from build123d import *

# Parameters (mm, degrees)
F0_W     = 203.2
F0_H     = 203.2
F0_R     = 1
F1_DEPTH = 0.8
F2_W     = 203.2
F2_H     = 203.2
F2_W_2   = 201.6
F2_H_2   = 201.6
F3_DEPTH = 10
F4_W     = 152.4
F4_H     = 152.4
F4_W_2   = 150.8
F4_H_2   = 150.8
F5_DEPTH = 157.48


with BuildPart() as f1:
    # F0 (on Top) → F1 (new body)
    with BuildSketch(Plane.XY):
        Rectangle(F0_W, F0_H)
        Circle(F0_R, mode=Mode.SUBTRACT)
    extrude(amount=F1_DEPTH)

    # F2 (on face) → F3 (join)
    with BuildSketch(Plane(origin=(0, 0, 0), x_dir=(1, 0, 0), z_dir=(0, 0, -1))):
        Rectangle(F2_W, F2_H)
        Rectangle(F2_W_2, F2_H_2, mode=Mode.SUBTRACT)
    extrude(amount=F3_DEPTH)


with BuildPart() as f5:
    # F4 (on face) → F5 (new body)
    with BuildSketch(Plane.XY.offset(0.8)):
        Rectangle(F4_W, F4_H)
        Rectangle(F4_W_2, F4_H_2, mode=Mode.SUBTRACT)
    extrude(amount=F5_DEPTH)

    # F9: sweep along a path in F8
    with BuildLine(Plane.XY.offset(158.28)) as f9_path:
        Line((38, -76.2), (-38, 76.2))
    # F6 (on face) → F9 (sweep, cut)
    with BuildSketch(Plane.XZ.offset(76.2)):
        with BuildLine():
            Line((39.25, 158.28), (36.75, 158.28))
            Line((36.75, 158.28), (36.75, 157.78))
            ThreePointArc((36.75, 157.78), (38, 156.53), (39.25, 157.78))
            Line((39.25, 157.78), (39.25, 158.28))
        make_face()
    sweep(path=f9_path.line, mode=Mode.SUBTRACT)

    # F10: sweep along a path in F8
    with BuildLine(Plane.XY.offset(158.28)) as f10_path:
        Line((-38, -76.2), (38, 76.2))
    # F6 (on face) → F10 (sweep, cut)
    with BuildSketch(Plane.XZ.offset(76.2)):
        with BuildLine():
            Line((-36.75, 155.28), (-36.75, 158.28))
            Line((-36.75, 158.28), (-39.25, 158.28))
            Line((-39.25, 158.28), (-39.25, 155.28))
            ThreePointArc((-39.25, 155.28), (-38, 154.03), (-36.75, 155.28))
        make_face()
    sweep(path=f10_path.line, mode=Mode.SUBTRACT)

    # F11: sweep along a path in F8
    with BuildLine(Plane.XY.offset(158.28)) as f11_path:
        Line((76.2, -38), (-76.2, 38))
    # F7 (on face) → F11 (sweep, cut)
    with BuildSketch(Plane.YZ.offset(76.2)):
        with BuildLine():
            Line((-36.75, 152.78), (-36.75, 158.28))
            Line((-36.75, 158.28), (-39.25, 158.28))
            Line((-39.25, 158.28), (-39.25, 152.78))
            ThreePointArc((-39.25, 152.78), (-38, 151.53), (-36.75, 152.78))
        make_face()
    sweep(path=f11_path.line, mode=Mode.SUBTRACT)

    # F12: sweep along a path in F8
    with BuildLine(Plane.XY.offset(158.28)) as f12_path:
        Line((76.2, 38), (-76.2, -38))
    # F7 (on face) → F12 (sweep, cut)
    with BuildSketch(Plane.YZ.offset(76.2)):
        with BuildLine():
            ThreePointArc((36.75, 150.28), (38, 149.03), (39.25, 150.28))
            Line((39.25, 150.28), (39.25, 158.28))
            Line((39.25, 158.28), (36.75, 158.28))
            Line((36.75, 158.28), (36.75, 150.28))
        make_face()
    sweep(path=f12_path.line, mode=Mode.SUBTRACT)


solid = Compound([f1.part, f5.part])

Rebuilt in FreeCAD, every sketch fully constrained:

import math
import FreeCAD as App
import Part
import Sketcher

doc = App.newDocument("Part")
body = doc.addObject("PartDesign::Body", "Body")

sketch1 = body.newObject("Sketcher::SketchObject", "Sketch")
sketch1.AttachmentSupport = (doc.getObject("XY_Plane"), [""])
sketch1.MapMode = "FlatFace"
sketch1.addGeometry(Part.LineSegment(App.Vector(-101.6, 101.6, 0), App.Vector(-101.6, -101.6, 0)), False)
sketch1.addGeometry(Part.LineSegment(App.Vector(-101.6, -101.6, 0), App.Vector(101.6, -101.6, 0)), False)
sketch1.addGeometry(Part.LineSegment(App.Vector(101.6, -101.6, 0), App.Vector(101.6, 101.6, 0)), False)
sketch1.addGeometry(Part.LineSegment(App.Vector(101.6, 101.6, 0), App.Vector(-101.6, 101.6, 0)), False)
sketch1.addGeometry(Part.Circle(App.Vector(0, 0, 0), App.Vector(0, 0, 1), 1), False)
sketch1.addConstraint(Sketcher.Constraint("Coincident", 0, 2, 1, 1))
sketch1.addConstraint(Sketcher.Constraint("Coincident", 1, 2, 2, 1))
sketch1.addConstraint(Sketcher.Constraint("Coincident", 2, 2, 3, 1))
sketch1.addConstraint(Sketcher.Constraint("Coincident", 3, 2, 0, 1))
sketch1.addConstraint(Sketcher.Constraint("Vertical", 0))
sketch1.addConstraint(Sketcher.Constraint("Horizontal", 1))
sketch1.addConstraint(Sketcher.Constraint("Vertical", 2))
sketch1.addConstraint(Sketcher.Constraint("Horizontal", 3))
sketch1.addConstraint(Sketcher.Constraint("Coincident", 4, 3, -1, 1))
sketch1.addConstraint(Sketcher.Constraint("Symmetric", 0, 2, 2, 2, -1, 1))
sketch1.addConstraint(Sketcher.Constraint("Equal", 3, 0))
sketch1.addConstraint(Sketcher.Constraint("Diameter", 4, 2.0))
sketch1.addConstraint(Sketcher.Constraint("DistanceX", 1, 1, 1, 2, 203.2))
pad1 = body.newObject("PartDesign::Pad", "Pad")
pad1.Profile = sketch1
pad1.Length = 0.8

sketch2 = body.newObject("Sketcher::SketchObject", "Sketch001")
sketch2.AttachmentSupport = (doc.getObject("XY_Plane"), [""])
sketch2.MapMode = "FlatFace"
sketch2.addGeometry(Part.LineSegment(App.Vector(-101.6, -101.6, 0), App.Vector(-101.6, 101.6, 0)), False)
sketch2.addGeometry(Part.LineSegment(App.Vector(-101.6, 101.6, 0), App.Vector(101.6, 101.6, 0)), False)
sketch2.addGeometry(Part.LineSegment(App.Vector(101.6, 101.6, 0), App.Vector(101.6, -101.6, 0)), False)
sketch2.addGeometry(Part.LineSegment(App.Vector(101.6, -101.6, 0), App.Vector(-101.6, -101.6, 0)), False)
sketch2.addGeometry(Part.LineSegment(App.Vector(100.8, 100.8, 0), App.Vector(-100.8, 100.8, 0)), False)
sketch2.addGeometry(Part.LineSegment(App.Vector(-100.8, 100.8, 0), App.Vector(-100.8, -100.8, 0)), False)
sketch2.addGeometry(Part.LineSegment(App.Vector(-100.8, -100.8, 0), App.Vector(100.8, -100.8, 0)), False)
sketch2.addGeometry(Part.LineSegment(App.Vector(100.8, -100.8, 0), App.Vector(100.8, 100.8, 0)), False)
sketch2.addConstraint(Sketcher.Constraint("Coincident", 0, 2, 1, 1))
sketch2.addConstraint(Sketcher.Constraint("Coincident", 1, 2, 2, 1))
sketch2.addConstraint(Sketcher.Constraint("Coincident", 2, 2, 3, 1))
sketch2.addConstraint(Sketcher.Constraint("Coincident", 3, 2, 0, 1))
sketch2.addConstraint(Sketcher.Constraint("Coincident", 4, 2, 5, 1))
sketch2.addConstraint(Sketcher.Constraint("Coincident", 5, 2, 6, 1))
sketch2.addConstraint(Sketcher.Constraint("Coincident", 6, 2, 7, 1))
sketch2.addConstraint(Sketcher.Constraint("Coincident", 7, 2, 4, 1))
sketch2.addConstraint(Sketcher.Constraint("Vertical", 0))
sketch2.addConstraint(Sketcher.Constraint("Horizontal", 1))
sketch2.addConstraint(Sketcher.Constraint("Vertical", 2))
sketch2.addConstraint(Sketcher.Constraint("Horizontal", 3))
sketch2.addConstraint(Sketcher.Constraint("Horizontal", 4))
sketch2.addConstraint(Sketcher.Constraint("Vertical", 5))
sketch2.addConstraint(Sketcher.Constraint("Horizontal", 6))
sketch2.addConstraint(Sketcher.Constraint("Vertical", 7))
sketch2.addConstraint(Sketcher.Constraint("Symmetric", 0, 2, 2, 2, -1, 1))
sketch2.addConstraint(Sketcher.Constraint("Symmetric", 4, 2, 6, 2, -1, 1))
sketch2.addConstraint(Sketcher.Constraint("Equal", 3, 0))
sketch2.addConstraint(Sketcher.Constraint("Equal", 6, 5))
sketch2.addConstraint(Sketcher.Constraint("DistanceX", 1, 1, 1, 2, 203.2))
sketch2.addConstraint(Sketcher.Constraint("DistanceX", 4, 2, 4, 1, 201.6))
pad2 = body.newObject("PartDesign::Pad", "Pad001")
pad2.Profile = sketch2
pad2.Length = 10
pad2.Reversed = True
body2 = doc.addObject("PartDesign::Body", "Body001")

sketch3 = body2.newObject("Sketcher::SketchObject", "Sketch002")
sketch3.AttachmentSupport = (doc.getObject("XY_Plane001"), [""])
sketch3.MapMode = "FlatFace"
sketch3.AttachmentOffset = App.Placement(App.Vector(0, 0, 0.8), App.Rotation())
sketch3.addGeometry(Part.LineSegment(App.Vector(-76.2, 76.2, 0), App.Vector(-76.2, -76.2, 0)), False)
sketch3.addGeometry(Part.LineSegment(App.Vector(-76.2, -76.2, 0), App.Vector(76.2, -76.2, 0)), False)
sketch3.addGeometry(Part.LineSegment(App.Vector(76.2, -76.2, 0), App.Vector(76.2, 76.2, 0)), False)
sketch3.addGeometry(Part.LineSegment(App.Vector(76.2, 76.2, 0), App.Vector(-76.2, 76.2, 0)), False)
sketch3.addGeometry(Part.LineSegment(App.Vector(75.4, -75.4, 0), App.Vector(-75.4, -75.4, 0)), False)
sketch3.addGeometry(Part.LineSegment(App.Vector(-75.4, -75.4, 0), App.Vector(-75.4, 75.4, 0)), False)
sketch3.addGeometry(Part.LineSegment(App.Vector(-75.4, 75.4, 0), App.Vector(75.4, 75.4, 0)), False)
sketch3.addGeometry(Part.LineSegment(App.Vector(75.4, 75.4, 0), App.Vector(75.4, -75.4, 0)), False)
sketch3.addConstraint(Sketcher.Constraint("Coincident", 0, 2, 1, 1))
sketch3.addConstraint(Sketcher.Constraint("Coincident", 1, 2, 2, 1))
sketch3.addConstraint(Sketcher.Constraint("Coincident", 2, 2, 3, 1))
sketch3.addConstraint(Sketcher.Constraint("Coincident", 3, 2, 0, 1))
sketch3.addConstraint(Sketcher.Constraint("Coincident", 4, 2, 5, 1))
sketch3.addConstraint(Sketcher.Constraint("Coincident", 5, 2, 6, 1))
sketch3.addConstraint(Sketcher.Constraint("Coincident", 6, 2, 7, 1))
sketch3.addConstraint(Sketcher.Constraint("Coincident", 7, 2, 4, 1))
sketch3.addConstraint(Sketcher.Constraint("Vertical", 0))
sketch3.addConstraint(Sketcher.Constraint("Horizontal", 1))
sketch3.addConstraint(Sketcher.Constraint("Vertical", 2))
sketch3.addConstraint(Sketcher.Constraint("Horizontal", 3))
sketch3.addConstraint(Sketcher.Constraint("Horizontal", 4))
sketch3.addConstraint(Sketcher.Constraint("Vertical", 5))
sketch3.addConstraint(Sketcher.Constraint("Horizontal", 6))
sketch3.addConstraint(Sketcher.Constraint("Vertical", 7))
sketch3.addConstraint(Sketcher.Constraint("Symmetric", 0, 2, 2, 2, -1, 1))
sketch3.addConstraint(Sketcher.Constraint("Symmetric", 4, 2, 6, 2, -1, 1))
sketch3.addConstraint(Sketcher.Constraint("Equal", 3, 0))
sketch3.addConstraint(Sketcher.Constraint("Equal", 6, 5))
sketch3.addConstraint(Sketcher.Constraint("DistanceX", 1, 1, 1, 2, 152.4))
sketch3.addConstraint(Sketcher.Constraint("DistanceX", 4, 2, 4, 1, 150.8))
pad3 = body2.newObject("PartDesign::Pad", "Pad002")
pad3.Profile = sketch3
pad3.Length = 157.48

sketch4 = body2.newObject("Sketcher::SketchObject", "Sketch003")
sketch4.AttachmentSupport = (doc.getObject("XZ_Plane001"), [""])
sketch4.MapMode = "FlatFace"
sketch4.AttachmentOffset = App.Placement(App.Vector(0, 0, 76.2), App.Rotation())
sketch4.addGeometry(Part.LineSegment(App.Vector(39.25, 158.28, 0), App.Vector(36.75, 158.28, 0)), False)
sketch4.addGeometry(Part.LineSegment(App.Vector(36.75, 158.28, 0), App.Vector(36.75, 157.78, 0)), False)
sketch4.addGeometry(Part.ArcOfCircle(Part.Circle(App.Vector(38, 157.78, 0), App.Vector(0, 0, 1), 1.25), math.radians(180), math.radians(360)), False)
sketch4.addGeometry(Part.LineSegment(App.Vector(39.25, 157.78, 0), App.Vector(39.25, 158.28, 0)), False)
sketch4.addConstraint(Sketcher.Constraint("Coincident", 0, 2, 1, 1))
sketch4.addConstraint(Sketcher.Constraint("Tangent", 1, 2, 2, 1))
sketch4.addConstraint(Sketcher.Constraint("Tangent", 2, 2, 3, 1))
sketch4.addConstraint(Sketcher.Constraint("Coincident", 3, 2, 0, 1))
sketch4.addConstraint(Sketcher.Constraint("Horizontal", 0))
sketch4.addConstraint(Sketcher.Constraint("Vertical", 1))
sketch4.addConstraint(Sketcher.Constraint("Vertical", 3))
sketch4.addConstraint(Sketcher.Constraint("Radius", 2, 1.25))
sketch4.addConstraint(Sketcher.Constraint("DistanceY", 1, 2, 1, 1, 0.5))
sketch4.addConstraint(Sketcher.Constraint("DistanceX", -1, 1, 2, 3, 38.0))
sketch4.addConstraint(Sketcher.Constraint("DistanceY", -1, 1, 2, 3, 157.78))

sketch5 = body2.newObject("Sketcher::SketchObject", "Sketch004")
sketch5.Placement = App.Placement(App.Vector(0, 0, 0), App.Rotation(App.Vector(-0.446273825, 0.894896459, 0), App.Vector(0, 0, 0.999999999), App.Vector(0.894896459, 0.446273825, 0), "ZXY"))
sketch5.addGeometry(Part.LineSegment(App.Vector(-85.149515, 158.28, 0), App.Vector(85.149515, 158.28, 0)), False)
sketch5.addConstraint(Sketcher.Constraint("Horizontal", 0))
sketch5.addConstraint(Sketcher.Constraint("DistanceY", -1, 1, 0, 1, 158.28))
sketch5.addConstraint(Sketcher.Constraint("DistanceX", 0, 1, 0, 2, 170.299031))
sketch5.addConstraint(Sketcher.Constraint("DistanceX", 0, 1, -1, 1, 85.149515))
doc.recompute()

subtractivepipe = body2.newObject("PartDesign::SubtractivePipe", "SubtractivePipe")
subtractivepipe.Profile = sketch4
subtractivepipe.Spine = (sketch5, ["Edge1"])

sketch6 = body2.newObject("Sketcher::SketchObject", "Sketch005")
sketch6.AttachmentSupport = (doc.getObject("XZ_Plane001"), [""])
sketch6.MapMode = "FlatFace"
sketch6.AttachmentOffset = App.Placement(App.Vector(0, 0, 76.2), App.Rotation())
sketch6.addGeometry(Part.LineSegment(App.Vector(-36.75, 155.28, 0), App.Vector(-36.75, 158.28, 0)), False)
sketch6.addGeometry(Part.LineSegment(App.Vector(-36.75, 158.28, 0), App.Vector(-39.25, 158.28, 0)), False)
sketch6.addGeometry(Part.LineSegment(App.Vector(-39.25, 158.28, 0), App.Vector(-39.25, 155.28, 0)), False)
sketch6.addGeometry(Part.ArcOfCircle(Part.Circle(App.Vector(-38, 155.28, 0), App.Vector(0, 0, 1), 1.25), math.radians(180), math.radians(360)), False)
sketch6.addConstraint(Sketcher.Constraint("Coincident", 0, 2, 1, 1))
sketch6.addConstraint(Sketcher.Constraint("Coincident", 1, 2, 2, 1))
sketch6.addConstraint(Sketcher.Constraint("Tangent", 2, 2, 3, 1))
sketch6.addConstraint(Sketcher.Constraint("Tangent", 3, 2, 0, 1))
sketch6.addConstraint(Sketcher.Constraint("Vertical", 0))
sketch6.addConstraint(Sketcher.Constraint("Horizontal", 1))
sketch6.addConstraint(Sketcher.Constraint("Vertical", 2))
sketch6.addConstraint(Sketcher.Constraint("DistanceY", 0, 1, 0, 2, 3.0))
sketch6.addConstraint(Sketcher.Constraint("Radius", 3, 1.25))
sketch6.addConstraint(Sketcher.Constraint("DistanceX", 3, 3, -1, 1, 38.0))
sketch6.addConstraint(Sketcher.Constraint("DistanceY", -1, 1, 3, 3, 155.28))

sketch7 = body2.newObject("Sketcher::SketchObject", "Sketch006")
sketch7.Placement = App.Placement(App.Vector(0, 0, 0), App.Rotation(App.Vector(0.446273825, 0.894896459, 0), App.Vector(0, 0, 0.999999999), App.Vector(0.894896459, -0.446273825, 0), "ZXY"))
sketch7.addGeometry(Part.LineSegment(App.Vector(-85.149515, 158.28, 0), App.Vector(85.149515, 158.28, 0)), False)
sketch7.addConstraint(Sketcher.Constraint("Horizontal", 0))
sketch7.addConstraint(Sketcher.Constraint("DistanceY", -1, 1, 0, 1, 158.28))
sketch7.addConstraint(Sketcher.Constraint("DistanceX", 0, 1, 0, 2, 170.299031))
sketch7.addConstraint(Sketcher.Constraint("DistanceX", 0, 1, -1, 1, 85.149515))
doc.recompute()

subtractivepipe2 = body2.newObject("PartDesign::SubtractivePipe", "SubtractivePipe001")
subtractivepipe2.Profile = sketch6
subtractivepipe2.Spine = (sketch7, ["Edge1"])

sketch8 = body2.newObject("Sketcher::SketchObject", "Sketch007")
sketch8.AttachmentSupport = (doc.getObject("YZ_Plane001"), [""])
sketch8.MapMode = "FlatFace"
sketch8.AttachmentOffset = App.Placement(App.Vector(0, 0, 76.2), App.Rotation())
sketch8.addGeometry(Part.LineSegment(App.Vector(-36.75, 152.78, 0), App.Vector(-36.75, 158.28, 0)), False)
sketch8.addGeometry(Part.LineSegment(App.Vector(-36.75, 158.28, 0), App.Vector(-39.25, 158.28, 0)), False)
sketch8.addGeometry(Part.LineSegment(App.Vector(-39.25, 158.28, 0), App.Vector(-39.25, 152.78, 0)), False)
sketch8.addGeometry(Part.ArcOfCircle(Part.Circle(App.Vector(-38, 152.78, 0), App.Vector(0, 0, 1), 1.25), math.radians(180), math.radians(360)), False)
sketch8.addConstraint(Sketcher.Constraint("Coincident", 0, 2, 1, 1))
sketch8.addConstraint(Sketcher.Constraint("Coincident", 1, 2, 2, 1))
sketch8.addConstraint(Sketcher.Constraint("Tangent", 2, 2, 3, 1))
sketch8.addConstraint(Sketcher.Constraint("Tangent", 3, 2, 0, 1))
sketch8.addConstraint(Sketcher.Constraint("Vertical", 0))
sketch8.addConstraint(Sketcher.Constraint("Horizontal", 1))
sketch8.addConstraint(Sketcher.Constraint("Vertical", 2))
sketch8.addConstraint(Sketcher.Constraint("Radius", 3, 1.25))
sketch8.addConstraint(Sketcher.Constraint("DistanceY", 0, 1, 0, 2, 5.5))
sketch8.addConstraint(Sketcher.Constraint("DistanceX", 3, 3, -1, 1, 38.0))
sketch8.addConstraint(Sketcher.Constraint("DistanceY", -1, 1, 3, 3, 152.78))

sketch9 = body2.newObject("Sketcher::SketchObject", "Sketch008")
sketch9.Placement = App.Placement(App.Vector(0, 0, 0), App.Rotation(App.Vector(-0.894896459, 0.446273825, 0), App.Vector(0, 0, 0.999999999), App.Vector(0.446273825, 0.894896459, 0), "ZXY"))
sketch9.addGeometry(Part.LineSegment(App.Vector(-85.149515, 158.28, 0), App.Vector(85.149515, 158.28, 0)), False)
sketch9.addConstraint(Sketcher.Constraint("Horizontal", 0))
sketch9.addConstraint(Sketcher.Constraint("DistanceY", -1, 1, 0, 1, 158.28))
sketch9.addConstraint(Sketcher.Constraint("DistanceX", 0, 1, 0, 2, 170.299031))
sketch9.addConstraint(Sketcher.Constraint("DistanceX", 0, 1, -1, 1, 85.149515))
doc.recompute()

subtractivepipe3 = body2.newObject("PartDesign::SubtractivePipe", "SubtractivePipe002")
subtractivepipe3.Profile = sketch8
subtractivepipe3.Spine = (sketch9, ["Edge1"])

sketch10 = body2.newObject("Sketcher::SketchObject", "Sketch009")
sketch10.AttachmentSupport = (doc.getObject("YZ_Plane001"), [""])
sketch10.MapMode = "FlatFace"
sketch10.AttachmentOffset = App.Placement(App.Vector(0, 0, 76.2), App.Rotation())
sketch10.addGeometry(Part.ArcOfCircle(Part.Circle(App.Vector(38, 150.28, 0), App.Vector(0, 0, 1), 1.25), math.radians(180), math.radians(360)), False)
sketch10.addGeometry(Part.LineSegment(App.Vector(39.25, 150.28, 0), App.Vector(39.25, 158.28, 0)), False)
sketch10.addGeometry(Part.LineSegment(App.Vector(39.25, 158.28, 0), App.Vector(36.75, 158.28, 0)), False)
sketch10.addGeometry(Part.LineSegment(App.Vector(36.75, 158.28, 0), App.Vector(36.75, 150.28, 0)), False)
sketch10.addConstraint(Sketcher.Constraint("Tangent", 0, 2, 1, 1))
sketch10.addConstraint(Sketcher.Constraint("Coincident", 1, 2, 2, 1))
sketch10.addConstraint(Sketcher.Constraint("Coincident", 2, 2, 3, 1))
sketch10.addConstraint(Sketcher.Constraint("Tangent", 3, 2, 0, 1))
sketch10.addConstraint(Sketcher.Constraint("Vertical", 1))
sketch10.addConstraint(Sketcher.Constraint("Horizontal", 2))
sketch10.addConstraint(Sketcher.Constraint("Vertical", 3))
sketch10.addConstraint(Sketcher.Constraint("DistanceY", 1, 1, 1, 2, 8.0))
sketch10.addConstraint(Sketcher.Constraint("Radius", 0, 1.25))
sketch10.addConstraint(Sketcher.Constraint("DistanceX", -1, 1, 0, 3, 38.0))
sketch10.addConstraint(Sketcher.Constraint("DistanceY", -1, 1, 0, 3, 150.28))

sketch11 = body2.newObject("Sketcher::SketchObject", "Sketch010")
sketch11.Placement = App.Placement(App.Vector(0, 0, 0), App.Rotation(App.Vector(-0.894896459, -0.446273825, 0), App.Vector(0, 0, 0.999999999), App.Vector(-0.446273825, 0.894896459, 0), "ZXY"))
sketch11.addGeometry(Part.LineSegment(App.Vector(-85.149515, 158.28, 0), App.Vector(85.149515, 158.28, 0)), False)
sketch11.addConstraint(Sketcher.Constraint("Horizontal", 0))
sketch11.addConstraint(Sketcher.Constraint("DistanceY", -1, 1, 0, 1, 158.28))
sketch11.addConstraint(Sketcher.Constraint("DistanceX", 0, 1, 0, 2, 170.299031))
sketch11.addConstraint(Sketcher.Constraint("DistanceX", 0, 1, -1, 1, 85.149515))
doc.recompute()

subtractivepipe4 = body2.newObject("PartDesign::SubtractivePipe", "SubtractivePipe003")
subtractivepipe4.Profile = sketch10
subtractivepipe4.Spine = (sketch11, ["Edge1"])

doc.recompute()
